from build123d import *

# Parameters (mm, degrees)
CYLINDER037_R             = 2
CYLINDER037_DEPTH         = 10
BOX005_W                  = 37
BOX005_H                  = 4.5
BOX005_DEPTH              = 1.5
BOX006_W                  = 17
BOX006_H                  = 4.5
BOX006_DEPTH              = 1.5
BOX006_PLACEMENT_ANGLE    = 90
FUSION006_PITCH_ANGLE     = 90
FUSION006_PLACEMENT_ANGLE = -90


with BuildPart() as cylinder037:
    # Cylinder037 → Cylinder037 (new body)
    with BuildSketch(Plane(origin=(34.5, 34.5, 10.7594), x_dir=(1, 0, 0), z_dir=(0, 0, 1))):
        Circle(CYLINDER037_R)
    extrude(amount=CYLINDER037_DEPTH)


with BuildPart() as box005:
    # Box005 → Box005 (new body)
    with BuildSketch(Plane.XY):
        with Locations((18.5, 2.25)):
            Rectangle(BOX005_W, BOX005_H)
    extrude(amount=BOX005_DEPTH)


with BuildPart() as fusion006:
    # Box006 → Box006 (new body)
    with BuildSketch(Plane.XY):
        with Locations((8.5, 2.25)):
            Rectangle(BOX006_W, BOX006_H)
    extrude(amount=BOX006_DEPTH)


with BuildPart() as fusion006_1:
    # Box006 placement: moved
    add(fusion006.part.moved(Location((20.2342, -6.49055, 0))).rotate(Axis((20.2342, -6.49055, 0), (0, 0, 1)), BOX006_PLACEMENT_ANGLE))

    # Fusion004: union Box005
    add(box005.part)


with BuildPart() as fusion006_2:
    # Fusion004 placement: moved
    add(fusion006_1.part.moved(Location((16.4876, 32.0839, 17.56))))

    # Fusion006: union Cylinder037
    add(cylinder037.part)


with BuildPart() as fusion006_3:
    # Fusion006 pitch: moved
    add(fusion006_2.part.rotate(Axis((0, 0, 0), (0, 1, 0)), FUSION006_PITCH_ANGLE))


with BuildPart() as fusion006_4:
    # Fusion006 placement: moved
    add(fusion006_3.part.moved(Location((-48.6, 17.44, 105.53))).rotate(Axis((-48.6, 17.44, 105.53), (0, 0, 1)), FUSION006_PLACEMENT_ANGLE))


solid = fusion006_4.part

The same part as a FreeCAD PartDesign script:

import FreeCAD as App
import Part
import Sketcher

V = App.Vector


def add_polygon(sketch, points):
    """Adds a closed chain of lines whose ends are joined by coincident constraints."""
    first, n = sketch.GeometryCount, len(points)
    for a, b in zip(points, points[1:] + points[:1]):
        sketch.addGeometry(Part.LineSegment(App.Vector(*a, 0), App.Vector(*b, 0)), False)
    for i in range(n):
        sketch.addConstraint(Sketcher.Constraint("Coincident", first + i, 2, first + (i + 1) % n, 1))

doc = App.newDocument("Part")
body = doc.addObject("PartDesign::Body", "Body")

# Sketch on XY plane
sketch1 = body.newObject("Sketcher::SketchObject", "Sketch")
sketch1.AttachmentSupport = (doc.getObject("XY_Plane"), [""])
sketch1.MapMode = "FlatFace"
sketch1.AttachmentOffset = App.Placement(V(0, 0, 10.7594), App.Rotation())
sketch1.addGeometry(Part.Circle(V(34.5, 34.5, 0), V(0, 0, 1), 2), False)
sketch1.addConstraint([
    Sketcher.Constraint("Diameter", 0, 4.0),
    Sketcher.Constraint("DistanceX", -1, 1, 0, 3, 34.5),
    Sketcher.Constraint("DistanceY", -1, 1, 0, 3, 34.5),
])
pad1 = body.newObject("PartDesign::Pad", "Pad")
pad1.Profile = sketch1
pad1.Length = 10
body2 = doc.addObject("PartDesign::Body", "Body001")

# Sketch on XY plane
sketch2 = body2.newObject("Sketcher::SketchObject", "Sketch001")
sketch2.AttachmentSupport = (doc.getObject("XY_Plane001"), [""])
sketch2.MapMode = "FlatFace"
add_polygon(sketch2, [(0, 4.5), (0, 0), (37, 0), (37, 4.5)])  # lines 0-3
sketch2.addConstraint([
    Sketcher.Constraint("Vertical", 0),
    Sketcher.Constraint("Horizontal", 1),
    Sketcher.Constraint("Vertical", 2),
    Sketcher.Constraint("Horizontal", 3),
    Sketcher.Constraint("Coincident", 0, 2, -1, 1),
    Sketcher.Constraint("DistanceX", 1, 1, 1, 2, 37.0),
    Sketcher.Constraint("DistanceY", 0, 2, 0, 1, 4.5),
])
pad2 = body2.newObject("PartDesign::Pad", "Pad001")
pad2.Profile = sketch2
pad2.Length = 1.5
body3 = doc.addObject("PartDesign::Body", "Body002")

# Sketch on XY plane
sketch3 = body3.newObject("Sketcher::SketchObject", "Sketch002")
sketch3.AttachmentSupport = (doc.getObject("XY_Plane002"), [""])
sketch3.MapMode = "FlatFace"
add_polygon(sketch3, [(0, 4.5), (0, 0), (17, 0), (17, 4.5)])  # lines 0-3
sketch3.addConstraint([
    Sketcher.Constraint("Vertical", 0),
    Sketcher.Constraint("Horizontal", 1),
    Sketcher.Constraint("Vertical", 2),
    Sketcher.Constraint("Horizontal", 3),
    Sketcher.Constraint("Coincident", 0, 2, -1, 1),
    Sketcher.Constraint("DistanceX", 1, 1, 1, 2, 17.0),
    Sketcher.Constraint("DistanceY", 0, 2, 0, 1, 4.5),
])
pad3 = body3.newObject("PartDesign::Pad", "Pad002")
pad3.Profile = sketch3
pad3.Length = 1.5
body4 = doc.addObject("PartDesign::Body", "Body003")
doc.recompute()

body3.Placement = App.Placement(V(20.2342, -6.49055, 0), App.Rotation(V(0, 0, 1), 90))
boolean = body4.newObject("PartDesign::Boolean", "Boolean")
boolean.Type = "Fuse"
boolean.addObjects([body3])
doc.recompute()

boolean2 = body4.newObject("PartDesign::Boolean", "Boolean001")
boolean2.Type = "Fuse"
boolean2.addObjects([body2])
body5 = doc.addObject("PartDesign::Body", "Body004")
doc.recompute()

body4.Placement = App.Placement(V(16.4876, 32.0839, 17.56), App.Rotation(V(0, 0, 1), 0))
boolean3 = body5.newObject("PartDesign::Boolean", "Boolean002")
boolean3.Type = "Fuse"
boolean3.addObjects([body4])
doc.recompute()

boolean4 = body5.newObject("PartDesign::Boolean", "Boolean003")
boolean4.Type = "Fuse"
boolean4.addObjects([body])
body6 = doc.addObject("PartDesign::Body", "Body005")
doc.recompute()

body5.Placement = App.Placement(V(0, 0, 0), App.Rotation(V(0, 1, 0), 90))
boolean5 = body6.newObject("PartDesign::Boolean", "Boolean004")
boolean5.Type = "Fuse"
boolean5.addObjects([body5])
body7 = doc.addObject("PartDesign::Body", "Body006")
doc.recompute()

body6.Placement = App.Placement(V(-48.6, 17.44, 105.53), App.Rotation(V(0, 0, 1), 270))
boolean6 = body7.newObject("PartDesign::Boolean", "Boolean005")
boolean6.Type = "Fuse"
boolean6.addObjects([body6])

doc.recompute()
